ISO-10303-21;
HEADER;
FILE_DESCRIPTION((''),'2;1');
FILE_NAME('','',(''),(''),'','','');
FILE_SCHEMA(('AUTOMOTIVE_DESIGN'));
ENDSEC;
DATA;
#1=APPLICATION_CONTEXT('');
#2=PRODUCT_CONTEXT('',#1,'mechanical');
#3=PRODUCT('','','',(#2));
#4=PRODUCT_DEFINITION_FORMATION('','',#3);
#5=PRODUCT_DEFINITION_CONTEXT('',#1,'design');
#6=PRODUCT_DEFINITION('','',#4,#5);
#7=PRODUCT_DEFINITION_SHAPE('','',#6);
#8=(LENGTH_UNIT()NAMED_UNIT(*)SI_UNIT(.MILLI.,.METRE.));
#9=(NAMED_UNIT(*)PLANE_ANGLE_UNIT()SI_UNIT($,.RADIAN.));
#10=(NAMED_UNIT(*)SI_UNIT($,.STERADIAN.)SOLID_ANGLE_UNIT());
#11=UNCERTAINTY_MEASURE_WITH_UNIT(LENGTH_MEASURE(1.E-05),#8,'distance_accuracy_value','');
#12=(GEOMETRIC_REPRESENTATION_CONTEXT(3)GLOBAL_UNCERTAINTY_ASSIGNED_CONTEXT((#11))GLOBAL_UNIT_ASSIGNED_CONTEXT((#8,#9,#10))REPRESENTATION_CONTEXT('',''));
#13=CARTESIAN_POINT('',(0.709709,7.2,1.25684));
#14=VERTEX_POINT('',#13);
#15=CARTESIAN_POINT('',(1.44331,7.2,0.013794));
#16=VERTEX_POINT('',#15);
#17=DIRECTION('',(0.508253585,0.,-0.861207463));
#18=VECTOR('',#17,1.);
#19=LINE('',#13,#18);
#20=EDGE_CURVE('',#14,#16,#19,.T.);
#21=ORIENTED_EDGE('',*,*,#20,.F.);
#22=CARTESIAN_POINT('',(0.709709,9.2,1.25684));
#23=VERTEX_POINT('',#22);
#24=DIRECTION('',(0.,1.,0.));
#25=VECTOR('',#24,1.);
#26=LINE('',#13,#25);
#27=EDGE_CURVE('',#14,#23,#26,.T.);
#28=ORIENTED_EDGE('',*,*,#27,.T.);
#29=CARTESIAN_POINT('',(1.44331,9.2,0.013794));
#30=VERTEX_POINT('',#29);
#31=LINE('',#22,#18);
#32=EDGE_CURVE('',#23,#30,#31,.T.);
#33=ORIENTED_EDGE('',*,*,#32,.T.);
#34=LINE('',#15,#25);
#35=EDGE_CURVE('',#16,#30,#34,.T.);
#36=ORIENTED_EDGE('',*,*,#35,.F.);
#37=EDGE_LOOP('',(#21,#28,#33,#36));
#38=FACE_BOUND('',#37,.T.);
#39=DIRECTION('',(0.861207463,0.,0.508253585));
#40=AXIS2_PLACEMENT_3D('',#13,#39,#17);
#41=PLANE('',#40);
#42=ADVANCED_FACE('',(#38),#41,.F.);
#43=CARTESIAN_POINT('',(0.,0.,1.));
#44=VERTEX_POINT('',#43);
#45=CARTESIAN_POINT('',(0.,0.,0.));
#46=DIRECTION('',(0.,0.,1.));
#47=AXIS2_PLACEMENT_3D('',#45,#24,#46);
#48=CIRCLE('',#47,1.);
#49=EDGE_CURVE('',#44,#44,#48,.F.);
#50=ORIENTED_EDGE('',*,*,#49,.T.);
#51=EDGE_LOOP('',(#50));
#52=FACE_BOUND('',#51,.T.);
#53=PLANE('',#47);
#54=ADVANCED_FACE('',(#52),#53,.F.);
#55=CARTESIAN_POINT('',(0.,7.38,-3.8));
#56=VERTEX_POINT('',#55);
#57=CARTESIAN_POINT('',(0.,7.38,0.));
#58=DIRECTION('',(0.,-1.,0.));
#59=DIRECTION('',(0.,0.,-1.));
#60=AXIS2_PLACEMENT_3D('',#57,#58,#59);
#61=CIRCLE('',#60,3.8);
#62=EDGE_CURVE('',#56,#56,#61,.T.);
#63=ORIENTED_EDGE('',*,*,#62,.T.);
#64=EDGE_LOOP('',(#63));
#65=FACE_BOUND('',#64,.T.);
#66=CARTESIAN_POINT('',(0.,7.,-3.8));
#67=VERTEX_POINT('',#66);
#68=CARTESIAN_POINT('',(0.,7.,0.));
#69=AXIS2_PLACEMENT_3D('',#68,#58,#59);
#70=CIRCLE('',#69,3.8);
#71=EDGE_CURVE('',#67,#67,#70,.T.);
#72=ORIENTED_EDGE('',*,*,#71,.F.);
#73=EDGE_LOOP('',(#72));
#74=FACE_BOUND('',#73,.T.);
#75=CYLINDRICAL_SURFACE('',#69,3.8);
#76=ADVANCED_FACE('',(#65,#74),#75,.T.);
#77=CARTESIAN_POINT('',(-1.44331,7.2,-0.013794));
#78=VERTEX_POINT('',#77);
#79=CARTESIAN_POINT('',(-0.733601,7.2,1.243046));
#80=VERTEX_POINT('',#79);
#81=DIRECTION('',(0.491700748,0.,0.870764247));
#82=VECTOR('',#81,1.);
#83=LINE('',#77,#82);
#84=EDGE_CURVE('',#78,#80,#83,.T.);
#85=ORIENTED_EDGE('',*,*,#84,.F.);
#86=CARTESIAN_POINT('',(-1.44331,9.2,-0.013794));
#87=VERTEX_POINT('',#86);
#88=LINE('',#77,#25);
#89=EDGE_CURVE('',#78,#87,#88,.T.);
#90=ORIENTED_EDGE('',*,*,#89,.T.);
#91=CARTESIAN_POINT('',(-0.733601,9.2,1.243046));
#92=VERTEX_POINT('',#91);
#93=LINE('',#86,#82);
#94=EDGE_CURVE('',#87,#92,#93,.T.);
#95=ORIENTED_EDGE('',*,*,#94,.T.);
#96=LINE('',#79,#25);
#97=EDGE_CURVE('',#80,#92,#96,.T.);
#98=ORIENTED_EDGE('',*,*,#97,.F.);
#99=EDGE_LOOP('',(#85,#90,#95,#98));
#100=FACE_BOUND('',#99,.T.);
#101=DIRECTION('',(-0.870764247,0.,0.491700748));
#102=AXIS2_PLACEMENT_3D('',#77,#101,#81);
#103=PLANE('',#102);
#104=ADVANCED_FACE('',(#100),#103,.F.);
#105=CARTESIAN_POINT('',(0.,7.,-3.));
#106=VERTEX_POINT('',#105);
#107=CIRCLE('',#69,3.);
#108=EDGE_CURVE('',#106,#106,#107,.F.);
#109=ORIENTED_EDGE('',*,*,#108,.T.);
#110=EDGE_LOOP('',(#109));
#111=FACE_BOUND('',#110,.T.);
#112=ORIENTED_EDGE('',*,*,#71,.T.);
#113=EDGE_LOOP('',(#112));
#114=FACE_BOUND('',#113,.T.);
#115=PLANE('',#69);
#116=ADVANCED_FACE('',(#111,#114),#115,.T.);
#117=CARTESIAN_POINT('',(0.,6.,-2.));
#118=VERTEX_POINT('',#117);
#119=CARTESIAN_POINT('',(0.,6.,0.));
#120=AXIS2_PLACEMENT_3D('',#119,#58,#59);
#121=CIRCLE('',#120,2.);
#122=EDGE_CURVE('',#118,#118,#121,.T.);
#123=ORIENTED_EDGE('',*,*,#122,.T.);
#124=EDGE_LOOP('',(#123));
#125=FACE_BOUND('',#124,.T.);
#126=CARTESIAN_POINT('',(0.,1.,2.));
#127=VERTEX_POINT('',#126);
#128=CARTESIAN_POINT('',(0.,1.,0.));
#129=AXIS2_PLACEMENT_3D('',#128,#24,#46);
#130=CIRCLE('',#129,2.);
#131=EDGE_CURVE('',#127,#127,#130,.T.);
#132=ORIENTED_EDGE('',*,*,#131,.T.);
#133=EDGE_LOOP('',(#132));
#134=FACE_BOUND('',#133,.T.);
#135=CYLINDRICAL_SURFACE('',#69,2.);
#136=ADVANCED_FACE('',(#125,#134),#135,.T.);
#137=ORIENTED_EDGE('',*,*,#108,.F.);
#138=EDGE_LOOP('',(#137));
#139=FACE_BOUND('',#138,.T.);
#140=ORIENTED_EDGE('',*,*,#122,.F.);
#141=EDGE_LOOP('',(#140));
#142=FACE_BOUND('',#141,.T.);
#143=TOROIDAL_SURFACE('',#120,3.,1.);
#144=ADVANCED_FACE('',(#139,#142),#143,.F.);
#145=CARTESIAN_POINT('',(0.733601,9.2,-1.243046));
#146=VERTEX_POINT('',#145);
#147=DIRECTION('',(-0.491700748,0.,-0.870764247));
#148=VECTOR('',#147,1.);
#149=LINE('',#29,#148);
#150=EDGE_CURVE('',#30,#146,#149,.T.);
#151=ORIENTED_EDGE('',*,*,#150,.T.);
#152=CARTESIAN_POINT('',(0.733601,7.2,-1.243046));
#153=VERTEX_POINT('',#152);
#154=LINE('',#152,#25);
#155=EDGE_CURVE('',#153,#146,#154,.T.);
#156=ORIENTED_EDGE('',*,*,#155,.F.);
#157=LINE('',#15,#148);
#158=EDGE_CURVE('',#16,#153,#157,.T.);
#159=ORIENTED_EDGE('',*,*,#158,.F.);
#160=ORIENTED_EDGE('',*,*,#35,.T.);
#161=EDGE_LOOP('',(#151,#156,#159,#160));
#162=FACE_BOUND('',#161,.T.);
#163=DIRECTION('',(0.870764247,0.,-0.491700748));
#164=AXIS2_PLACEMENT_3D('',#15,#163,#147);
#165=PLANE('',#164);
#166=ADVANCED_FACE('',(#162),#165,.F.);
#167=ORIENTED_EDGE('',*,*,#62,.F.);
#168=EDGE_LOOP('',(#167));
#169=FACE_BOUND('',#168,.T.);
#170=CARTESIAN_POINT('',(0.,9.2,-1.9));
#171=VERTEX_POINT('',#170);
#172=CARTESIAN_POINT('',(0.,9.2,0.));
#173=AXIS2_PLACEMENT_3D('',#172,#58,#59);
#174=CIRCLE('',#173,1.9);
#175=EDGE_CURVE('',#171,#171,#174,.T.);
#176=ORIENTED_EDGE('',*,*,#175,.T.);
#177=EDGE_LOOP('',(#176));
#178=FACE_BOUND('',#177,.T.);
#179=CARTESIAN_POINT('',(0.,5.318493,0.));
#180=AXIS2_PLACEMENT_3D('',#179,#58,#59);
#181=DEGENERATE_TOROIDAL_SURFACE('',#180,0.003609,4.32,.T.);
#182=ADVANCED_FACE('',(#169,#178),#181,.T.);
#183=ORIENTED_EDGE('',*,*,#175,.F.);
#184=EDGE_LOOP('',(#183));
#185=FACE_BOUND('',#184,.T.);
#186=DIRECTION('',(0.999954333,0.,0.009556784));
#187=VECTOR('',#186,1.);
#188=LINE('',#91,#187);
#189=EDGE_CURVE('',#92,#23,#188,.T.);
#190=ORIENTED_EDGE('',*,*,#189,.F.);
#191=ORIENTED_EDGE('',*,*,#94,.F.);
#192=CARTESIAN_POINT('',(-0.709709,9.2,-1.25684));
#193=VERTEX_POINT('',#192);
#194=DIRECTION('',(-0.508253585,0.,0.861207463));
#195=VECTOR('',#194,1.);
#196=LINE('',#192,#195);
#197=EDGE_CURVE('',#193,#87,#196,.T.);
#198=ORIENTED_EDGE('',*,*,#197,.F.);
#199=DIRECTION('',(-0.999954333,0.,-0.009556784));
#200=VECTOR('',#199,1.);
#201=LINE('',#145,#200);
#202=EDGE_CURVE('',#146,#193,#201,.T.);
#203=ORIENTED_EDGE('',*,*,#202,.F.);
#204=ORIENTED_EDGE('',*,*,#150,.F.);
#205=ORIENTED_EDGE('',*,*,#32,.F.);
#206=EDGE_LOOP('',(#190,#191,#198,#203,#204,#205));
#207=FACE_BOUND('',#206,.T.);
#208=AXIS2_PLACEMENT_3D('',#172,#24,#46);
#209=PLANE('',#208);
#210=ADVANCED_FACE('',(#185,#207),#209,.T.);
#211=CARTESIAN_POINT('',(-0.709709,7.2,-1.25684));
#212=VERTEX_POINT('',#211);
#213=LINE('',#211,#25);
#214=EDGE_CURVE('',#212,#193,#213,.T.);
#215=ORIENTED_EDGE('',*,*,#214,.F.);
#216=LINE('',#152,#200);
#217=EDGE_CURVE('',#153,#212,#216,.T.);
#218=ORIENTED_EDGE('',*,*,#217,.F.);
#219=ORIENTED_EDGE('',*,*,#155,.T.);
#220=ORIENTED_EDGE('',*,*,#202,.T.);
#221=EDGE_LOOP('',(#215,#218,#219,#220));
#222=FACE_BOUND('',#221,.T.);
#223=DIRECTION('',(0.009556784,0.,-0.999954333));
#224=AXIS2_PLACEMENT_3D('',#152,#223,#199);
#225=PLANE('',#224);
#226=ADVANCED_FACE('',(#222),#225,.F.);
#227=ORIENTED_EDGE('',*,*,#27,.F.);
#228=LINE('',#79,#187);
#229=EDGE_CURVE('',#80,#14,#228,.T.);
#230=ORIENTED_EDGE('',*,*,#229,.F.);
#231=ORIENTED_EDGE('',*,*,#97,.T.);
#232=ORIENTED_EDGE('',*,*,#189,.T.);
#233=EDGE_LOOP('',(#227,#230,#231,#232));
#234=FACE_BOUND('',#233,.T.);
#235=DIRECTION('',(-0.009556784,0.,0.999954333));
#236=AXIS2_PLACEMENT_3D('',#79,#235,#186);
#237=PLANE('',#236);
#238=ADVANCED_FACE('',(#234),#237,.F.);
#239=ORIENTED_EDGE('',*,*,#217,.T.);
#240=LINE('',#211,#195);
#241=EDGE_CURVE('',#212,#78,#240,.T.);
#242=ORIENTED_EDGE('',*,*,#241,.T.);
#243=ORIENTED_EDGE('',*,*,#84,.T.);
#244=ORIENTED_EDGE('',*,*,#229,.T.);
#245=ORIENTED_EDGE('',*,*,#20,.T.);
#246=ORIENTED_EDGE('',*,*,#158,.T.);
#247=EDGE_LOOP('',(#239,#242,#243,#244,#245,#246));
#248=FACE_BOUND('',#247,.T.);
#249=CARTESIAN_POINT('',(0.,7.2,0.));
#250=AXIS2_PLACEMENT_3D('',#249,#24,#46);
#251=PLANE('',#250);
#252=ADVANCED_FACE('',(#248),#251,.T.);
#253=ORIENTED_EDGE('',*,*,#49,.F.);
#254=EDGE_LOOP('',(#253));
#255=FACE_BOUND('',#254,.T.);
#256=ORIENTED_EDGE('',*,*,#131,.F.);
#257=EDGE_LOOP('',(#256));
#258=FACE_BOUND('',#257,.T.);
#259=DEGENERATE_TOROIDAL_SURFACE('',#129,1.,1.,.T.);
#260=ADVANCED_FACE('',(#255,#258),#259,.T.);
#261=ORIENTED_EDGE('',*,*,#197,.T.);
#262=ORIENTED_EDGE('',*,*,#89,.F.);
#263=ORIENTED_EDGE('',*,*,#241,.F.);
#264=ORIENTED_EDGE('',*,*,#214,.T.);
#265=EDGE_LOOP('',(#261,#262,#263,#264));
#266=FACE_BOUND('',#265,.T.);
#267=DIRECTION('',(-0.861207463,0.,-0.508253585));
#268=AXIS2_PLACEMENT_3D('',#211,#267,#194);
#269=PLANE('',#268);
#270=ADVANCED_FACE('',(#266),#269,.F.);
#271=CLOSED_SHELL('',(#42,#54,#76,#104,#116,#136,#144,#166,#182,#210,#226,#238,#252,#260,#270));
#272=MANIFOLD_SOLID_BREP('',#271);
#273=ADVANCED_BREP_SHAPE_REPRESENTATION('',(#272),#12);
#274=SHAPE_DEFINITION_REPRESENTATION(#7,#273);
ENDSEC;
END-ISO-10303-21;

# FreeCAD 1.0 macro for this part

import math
import FreeCAD as App
import Part
import Sketcher
Q = App.Units.Quantity


def edges_at(feature, points):
    """Names of the edges that pass closest to the given points."""
    edges = feature.Shape.Edges
    near = lambda p: min(range(len(edges)), key=lambda i: edges[i].distToShape(Part.Vertex(*p))[0])
    return sorted({f"Edge{near(p) + 1}" for p in points})

doc = App.newDocument("Part")
body = doc.addObject("PartDesign::Body", "Body")

# Sketch on XZ plane
sketch1 = body.newObject("Sketcher::SketchObject", "Sketch")
sketch1.AttachmentSupport = (doc.getObject("XZ_Plane"), [""])
sketch1.MapMode = "FlatFace"
sketch1.addGeometry(Part.Circle(App.Vector(0, 0, 0), App.Vector(0, 0, 1), 2), False)
sketch1.addConstraint(Sketcher.Constraint("Coincident", 0, 3, -1, 1))
sketch1.addConstraint(Sketcher.Constraint("Diameter", 0, Q("4 mm")))
pad1 = body.newObject("PartDesign::Pad", "Pad")
pad1.Profile = sketch1
pad1.Length = 7
pad1.Reversed = True

# Sketch on XY plane
sketch2 = body.newObject("Sketcher::SketchObject", "Sketch001")
sketch2.AttachmentSupport = (doc.getObject("XY_Plane"), [""])
sketch2.MapMode = "FlatFace"
sketch2.addGeometry(Part.LineSegment(App.Vector(0, 7, 0), App.Vector(3.8, 7, 0)), False)
sketch2.addGeometry(Part.LineSegment(App.Vector(3.8, 7, 0), App.Vector(3.8, 7.38, 0)), False)
sketch2.addGeometry(Part.ArcOfCircle(Part.Circle(App.Vector(0.003609, 5.318493, 0), App.Vector(0, 0, 1), 4.32), math.radians(28.50274), math.radians(63.961214)), False)
sketch2.addGeometry(Part.LineSegment(App.Vector(1.9, 9.2, 0), App.Vector(0, 9.2, 0)), False)
sketch2.addGeometry(Part.LineSegment(App.Vector(0, 9.2, 0), App.Vector(0, 7, 0)), False)
sketch2.addConstraint(Sketcher.Constraint("Coincident", 0, 2, 1, 1))
sketch2.addConstraint(Sketcher.Constraint("Coincident", 1, 2, 2, 1))
sketch2.addConstraint(Sketcher.Constraint("Coincident", 2, 2, 3, 1))
sketch2.addConstraint(Sketcher.Constraint("Coincident", 3, 2, 4, 1))
sketch2.addConstraint(Sketcher.Constraint("Coincident", 4, 2, 0, 1))
sketch2.addConstraint(Sketcher.Constraint("Horizontal", 0))
sketch2.addConstraint(Sketcher.Constraint("Vertical", 1))
sketch2.addConstraint(Sketcher.Constraint("Horizontal", 3))
sketch2.addConstraint(Sketcher.Constraint("Vertical", 4))
sketch2.addConstraint(Sketcher.Constraint("PointOnObject", 3, 2, -2))
sketch2.addConstraint(Sketcher.Constraint("Radius", 2, Q("4.32 mm")))
sketch2.addConstraint(Sketcher.Constraint("DistanceX", 0, 1, 0, 2, Q("3.8 mm")))
sketch2.addConstraint(Sketcher.Constraint("DistanceX", 3, 2, 3, 1, Q("1.9 mm")))
sketch2.addConstraint(Sketcher.Constraint("DistanceY", 4, 2, 4, 1, Q("2.2 mm")))
sketch2.addConstraint(Sketcher.Constraint("DistanceY", -1, 1, 0, 2, Q("7 mm")))
sketch2.addConstraint(Sketcher.Constraint("DistanceY", 1, 1, 1, 2, Q("0.38 mm")))
revolution = body.newObject("PartDesign::Revolution", "Revolution")
revolution.Profile = sketch2
revolution.ReferenceAxis = (sketch2, ["V_Axis"])
revolution.Angle = 360

# Sketch on XZ plane
sketch3 = body.newObject("Sketcher::SketchObject", "Sketch002")
sketch3.AttachmentSupport = (doc.getObject("XZ_Plane"), [""])
sketch3.MapMode = "FlatFace"
sketch3.AttachmentOffset = App.Placement(App.Vector(0, 0, -9.2), App.Rotation())
sketch3.addGeometry(Part.LineSegment(App.Vector(-0.733601, 1.243046, 0), App.Vector(0.709709, 1.25684, 0)), False)
sketch3.addGeometry(Part.LineSegment(App.Vector(0.709709, 1.25684, 0), App.Vector(1.44331, 0.013794, 0)), False)
sketch3.addGeometry(Part.LineSegment(App.Vector(1.44331, 0.013794, 0), App.Vector(0.733601, -1.243046, 0)), False)
sketch3.addGeometry(Part.LineSegment(App.Vector(0.733601, -1.243046, 0), App.Vector(-0.709709, -1.25684, 0)), False)
sketch3.addGeometry(Part.LineSegment(App.Vector(-0.709709, -1.25684, 0), App.Vector(-1.44331, -0.013794, 0)), False)
sketch3.addGeometry(Part.LineSegment(App.Vector(-1.44331, -0.013794, 0), App.Vector(-0.733601, 1.243046, 0)), False)
sketch3.addConstraint(Sketcher.Constraint("Coincident", 0, 2, 1, 1))
sketch3.addConstraint(Sketcher.Constraint("Coincident", 1, 2, 2, 1))
sketch3.addConstraint(Sketcher.Constraint("Coincident", 2, 2, 3, 1))
sketch3.addConstraint(Sketcher.Constraint("Coincident", 3, 2, 4, 1))
sketch3.addConstraint(Sketcher.Constraint("Coincident", 4, 2, 5, 1))
sketch3.addConstraint(Sketcher.Constraint("Coincident", 5, 2, 0, 1))
sketch3.addConstraint(Sketcher.Constraint("Symmetric", 0, 2, 3, 2, -1, 1))
sketch3.addConstraint(Sketcher.Constraint("Symmetric", 1, 2, 4, 2, -1, 1))
sketch3.addConstraint(Sketcher.Constraint("Symmetric", 2, 2, 5, 2, -1, 1))
sketch3.addConstraint(Sketcher.Constraint("Equal", 0, 1))
sketch3.addConstraint(Sketcher.Constraint("Equal", 1, 2))
sketch3.addConstraint(Sketcher.Constraint("DistanceX", -1, 1, 2, 2, Q("0.733601 mm")))
sketch3.addConstraint(Sketcher.Constraint("DistanceX", 0, 2, 1, 2, Q("0.733601 mm")))
sketch3.addConstraint(Sketcher.Constraint("DistanceX", -1, 1, 0, 2, Q("0.709709 mm")))
sketch3.addConstraint(Sketcher.Constraint("DistanceY", -1, 1, 0, 2, Q("1.25684 mm")))
pocket1 = body.newObject("PartDesign::Pocket", "Pocket")
pocket1.Profile = sketch3
pocket1.Length = 2
pocket1.Reversed = True
doc.recompute()

fillet = body.newObject("PartDesign::Fillet", "Fillet")
fillet.Base = (pocket1, edges_at(pocket1, [(0, 0, -2), (0, 7, -2)]))
fillet.Radius = 1

doc.recompute()
